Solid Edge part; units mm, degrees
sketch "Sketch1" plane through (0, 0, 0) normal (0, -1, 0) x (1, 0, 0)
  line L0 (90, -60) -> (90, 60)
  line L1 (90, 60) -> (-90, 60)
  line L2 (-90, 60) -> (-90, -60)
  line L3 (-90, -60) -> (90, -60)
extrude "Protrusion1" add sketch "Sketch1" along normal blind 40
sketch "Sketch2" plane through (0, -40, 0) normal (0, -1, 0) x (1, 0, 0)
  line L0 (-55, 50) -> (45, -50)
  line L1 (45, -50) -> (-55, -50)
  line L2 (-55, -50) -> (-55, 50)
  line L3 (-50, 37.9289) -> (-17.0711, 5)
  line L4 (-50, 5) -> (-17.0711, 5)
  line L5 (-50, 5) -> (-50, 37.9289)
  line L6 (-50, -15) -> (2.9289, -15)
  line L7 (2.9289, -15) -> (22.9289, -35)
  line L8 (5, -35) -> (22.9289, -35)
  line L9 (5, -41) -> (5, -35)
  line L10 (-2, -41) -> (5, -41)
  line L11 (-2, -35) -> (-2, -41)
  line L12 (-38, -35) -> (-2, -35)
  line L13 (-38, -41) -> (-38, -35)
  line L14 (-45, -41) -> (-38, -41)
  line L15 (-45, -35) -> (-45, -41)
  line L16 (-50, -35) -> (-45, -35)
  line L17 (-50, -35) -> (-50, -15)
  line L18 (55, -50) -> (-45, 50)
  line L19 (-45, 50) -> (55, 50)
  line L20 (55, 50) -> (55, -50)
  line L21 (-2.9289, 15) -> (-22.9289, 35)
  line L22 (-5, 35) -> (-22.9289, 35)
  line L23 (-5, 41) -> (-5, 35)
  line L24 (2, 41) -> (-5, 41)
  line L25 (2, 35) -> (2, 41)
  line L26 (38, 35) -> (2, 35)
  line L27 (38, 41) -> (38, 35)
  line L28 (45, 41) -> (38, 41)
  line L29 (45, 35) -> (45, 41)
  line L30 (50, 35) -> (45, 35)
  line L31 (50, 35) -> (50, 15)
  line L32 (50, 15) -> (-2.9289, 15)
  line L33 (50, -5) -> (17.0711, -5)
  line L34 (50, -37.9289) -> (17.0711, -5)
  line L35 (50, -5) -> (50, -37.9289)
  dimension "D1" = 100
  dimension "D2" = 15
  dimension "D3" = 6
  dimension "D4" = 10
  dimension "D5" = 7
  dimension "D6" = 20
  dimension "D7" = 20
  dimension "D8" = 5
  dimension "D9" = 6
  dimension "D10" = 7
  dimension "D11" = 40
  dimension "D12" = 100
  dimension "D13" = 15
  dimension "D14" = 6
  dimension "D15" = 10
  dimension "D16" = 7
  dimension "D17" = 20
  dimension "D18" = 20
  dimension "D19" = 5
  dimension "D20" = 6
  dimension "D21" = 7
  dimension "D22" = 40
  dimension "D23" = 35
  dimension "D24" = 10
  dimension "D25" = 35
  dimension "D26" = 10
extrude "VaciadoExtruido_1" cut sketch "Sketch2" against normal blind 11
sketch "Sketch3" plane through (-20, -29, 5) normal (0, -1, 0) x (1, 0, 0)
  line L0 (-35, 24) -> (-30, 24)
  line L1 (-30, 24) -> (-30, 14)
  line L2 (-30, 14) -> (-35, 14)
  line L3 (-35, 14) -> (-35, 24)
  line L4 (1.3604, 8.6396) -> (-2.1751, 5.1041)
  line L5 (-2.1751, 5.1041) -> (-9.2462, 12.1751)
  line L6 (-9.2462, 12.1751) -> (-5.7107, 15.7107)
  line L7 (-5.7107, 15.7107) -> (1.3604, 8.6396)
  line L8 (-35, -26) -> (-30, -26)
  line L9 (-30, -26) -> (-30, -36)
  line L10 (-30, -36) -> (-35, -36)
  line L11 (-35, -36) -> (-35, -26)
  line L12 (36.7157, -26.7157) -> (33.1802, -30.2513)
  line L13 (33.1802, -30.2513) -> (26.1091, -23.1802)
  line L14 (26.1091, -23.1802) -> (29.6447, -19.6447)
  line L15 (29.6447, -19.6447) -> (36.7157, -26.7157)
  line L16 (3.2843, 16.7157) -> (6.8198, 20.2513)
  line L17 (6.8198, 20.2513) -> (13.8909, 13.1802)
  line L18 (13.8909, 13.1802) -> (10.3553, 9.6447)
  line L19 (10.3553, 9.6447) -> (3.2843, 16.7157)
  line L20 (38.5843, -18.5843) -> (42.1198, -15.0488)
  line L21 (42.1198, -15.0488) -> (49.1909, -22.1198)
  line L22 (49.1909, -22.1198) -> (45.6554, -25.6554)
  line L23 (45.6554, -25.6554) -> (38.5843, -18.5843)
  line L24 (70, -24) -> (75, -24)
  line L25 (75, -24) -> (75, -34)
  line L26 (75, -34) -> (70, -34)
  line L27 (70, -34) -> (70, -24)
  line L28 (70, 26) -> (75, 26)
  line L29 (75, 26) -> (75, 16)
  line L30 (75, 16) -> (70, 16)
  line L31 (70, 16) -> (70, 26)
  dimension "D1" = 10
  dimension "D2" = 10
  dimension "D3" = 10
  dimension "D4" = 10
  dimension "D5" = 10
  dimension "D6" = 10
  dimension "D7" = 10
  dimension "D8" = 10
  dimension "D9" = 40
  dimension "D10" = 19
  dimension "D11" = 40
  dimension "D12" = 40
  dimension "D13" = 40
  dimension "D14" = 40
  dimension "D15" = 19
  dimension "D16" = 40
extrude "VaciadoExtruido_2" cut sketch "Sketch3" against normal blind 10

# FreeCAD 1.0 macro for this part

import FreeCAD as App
import Part
import Sketcher
Q = App.Units.Quantity


def add_polygon(sketch, points):
    """Adds a closed chain of lines whose ends are joined by coincident constraints."""
    first, n = sketch.GeometryCount, len(points)
    for a, b in zip(points, points[1:] + points[:1]):
        sketch.addGeometry(Part.LineSegment(App.Vector(*a, 0), App.Vector(*b, 0)), False)
    for i in range(n):
        sketch.addConstraint(Sketcher.Constraint("Coincident", first + i, 2, first + (i + 1) % n, 1))

doc = App.newDocument("Part")
body = doc.addObject("PartDesign::Body", "Body")

# Sketch on XZ plane
sketch1 = doc.addObject("Sketcher::SketchObject", "Sketch")
body.addObject(sketch1)
sketch1.AttachmentSupport = (doc.XZ_Plane, [""])
sketch1.MapMode = "FlatFace"
add_polygon(sketch1, [(-90, -60), (90, -60), (90, 60), (-90, 60)])  # lines 0-3
sketch1.addConstraint([
    Sketcher.Constraint("Horizontal", 0),
    Sketcher.Constraint("Vertical", 1),
    Sketcher.Constraint("Horizontal", 2),
    Sketcher.Constraint("Vertical", 3),
    Sketcher.Constraint("Symmetric", 0, 2, 2, 2, -1, 1),
    Sketcher.Constraint("DistanceX", 0, 1, 0, 2, Q("180 mm")),
    Sketcher.Constraint("DistanceY", 1, 1, 1, 2, Q("120 mm")),
])
pad1 = doc.addObject("PartDesign::Pad", "Pad")
body.addObject(pad1)
pad1.Profile = sketch1
pad1.Length = 40

# Sketch on XZ plane
sketch2 = doc.addObject("Sketcher::SketchObject", "Sketch001")
body.addObject(sketch2)
sketch2.AttachmentSupport = (doc.XZ_Plane, [""])
sketch2.MapMode = "FlatFace"
sketch2.AttachmentOffset = App.Placement(App.Vector(0, 0, 40), App.Rotation())
add_polygon(sketch2, [(45, -50), (-55, 50), (-55, -50)])  # lines 0-2
add_polygon(sketch2, [(-50, -35), (-50, -15), (3, -15), (23, -35), (5, -35), (5, -41), (-2, -41), (-2, -35), (-38, -35), (-38, -41), (-45, -41), (-45, -35)])  # lines 3-14
add_polygon(sketch2, [(-50, 5), (-50, 38), (-17, 5)])  # lines 15-17
add_polygon(sketch2, [(-45, 50), (55, -50), (55, 50)])  # lines 18-20
add_polygon(sketch2, [(17, -5), (50, -5), (50, -38)])  # lines 21-23
add_polygon(sketch2, [(50, 15), (-3, 15), (-23, 35), (-5, 35), (-5, 41), (2, 41), (2, 35), (38, 35), (38, 41), (45, 41), (45, 35), (50, 35)])  # lines 24-35
sketch2.addConstraint([
    Sketcher.Constraint("Vertical", 1),
    Sketcher.Constraint("Horizontal", 2),
    Sketcher.Constraint("Vertical", 3),
    Sketcher.Constraint("Horizontal", 4),
    Sketcher.Constraint("Horizontal", 6),
    Sketcher.Constraint("Vertical", 7),
    Sketcher.Constraint("Horizontal", 8),
    Sketcher.Constraint("Vertical", 9),
    Sketcher.Constraint("Horizontal", 10),
    Sketcher.Constraint("Vertical", 11),
    Sketcher.Constraint("Horizontal", 12),
    Sketcher.Constraint("Vertical", 13),
    Sketcher.Constraint("Horizontal", 14),
    Sketcher.Constraint("Vertical", 15),
    Sketcher.Constraint("Horizontal", 17),
    Sketcher.Constraint("Vertical", 19),
    Sketcher.Constraint("Horizontal", 20),
    Sketcher.Constraint("Horizontal", 21),
    Sketcher.Constraint("Vertical", 22),
    Sketcher.Constraint("Horizontal", 24),
    Sketcher.Constraint("Horizontal", 26),
    Sketcher.Constraint("Vertical", 27),
    Sketcher.Constraint("Horizontal", 28),
    Sketcher.Constraint("Vertical", 29),
    Sketcher.Constraint("Horizontal", 30),
    Sketcher.Constraint("Vertical", 31),
    Sketcher.Constraint("Horizontal", 32),
    Sketcher.Constraint("Vertical", 33),
    Sketcher.Constraint("Horizontal", 34),
    Sketcher.Constraint("Vertical", 35),
    Sketcher.Constraint("Symmetric", 0, 2, 18, 2, -1, 1),
    Sketcher.Constraint("Symmetric", 2, 2, 20, 2, -1, 1),
    Sketcher.Constraint("Symmetric", 17, 2, 21, 2, -1, 1),
    Sketcher.Constraint("Symmetric", 4, 2, 24, 2, -1, 1),
    Sketcher.Constraint("Symmetric", 5, 2, 25, 2, -1, 1),
    Sketcher.Constraint("Symmetric", 7, 2, 27, 2, -1, 1),
    Sketcher.Constraint("Symmetric", 9, 2, 29, 2, -1, 1),
    Sketcher.Constraint("Symmetric", 11, 2, 31, 2, -1, 1),
    Sketcher.Constraint("Symmetric", 13, 2, 33, 2, -1, 1),
    Sketcher.Constraint("Parallel", 0, 5),
    Sketcher.Constraint("Parallel", 5, 16),
    Sketcher.Constraint("Parallel", 18, 23),
    Sketcher.Constraint("Horizontal", 6, 2, 9, 2),
    Sketcher.Constraint("Horizontal", 8, 2, 11, 2),
    Sketcher.Constraint("Horizontal", 10, 2, 13, 2),
    Sketcher.Constraint("Horizontal", 2, 2, 18, 2),
    Sketcher.Constraint("Vertical", 14, 2, 15, 2),
    Sketcher.Constraint("Vertical", 13, 2, 20, 2),
    Sketcher.Constraint("Vertical", 22, 2, 34, 2),
    Sketcher.Constraint("Equal", 8, 12),
    Sketcher.Constraint("Equal", 17, 21),
    Sketcher.Constraint("Equal", 20, 1),
    Sketcher.Constraint("DistanceX", 2, 1, 2, 2, Q("100 mm")),
    Sketcher.Constraint("DistanceX", 8, 2, 8, 1, Q("7 mm")),
    Sketcher.Constraint("DistanceX", 10, 2, 10, 1, Q("36 mm")),
    Sketcher.Constraint("DistanceX", 14, 2, 14, 1, Q("5 mm")),
    Sketcher.Constraint("DistanceY", 3, 1, 3, 2, Q("20 mm")),
    Sketcher.Constraint("DistanceY", 7, 2, 7, 1, Q("6 mm")),
    Sketcher.Constraint("DistanceX", 0, 2, -1, 1, Q("55 mm")),
    Sketcher.Constraint("DistanceY", 3, 2, -1, 1, Q("15 mm")),
    Sketcher.Constraint("DistanceY", -1, 1, 16, 2, Q("5 mm")),
    Sketcher.Constraint("DistanceX", 16, 2, 4, 2, Q("20 mm")),
    Sketcher.Constraint("DistanceX", 4, 1, 4, 2, Q("52.929 mm")),
])
pocket1 = doc.addObject("PartDesign::Pocket", "Pocket")
body.addObject(pocket1)
pocket1.Profile = sketch2
pocket1.Length = 11

# Sketch on XZ plane
sketch3 = doc.addObject("Sketcher::SketchObject", "Sketch002")
body.addObject(sketch3)
sketch3.AttachmentSupport = (doc.XZ_Plane, [""])
sketch3.MapMode = "FlatFace"
sketch3.AttachmentOffset = App.Placement(App.Vector(0, 0, 29), App.Rotation())
add_polygon(sketch3, [(-50, 29), (-55, 29), (-55, 19), (-50, 19)])  # lines 0-3
add_polygon(sketch3, [(-22.2, 10.1), (-18.6, 13.6), (-25.7, 20.7), (-29.2, 17.2)])  # lines 4-7
add_polygon(sketch3, [(-50, -21), (-55, -21), (-55, -31), (-50, -31)])  # lines 8-11
add_polygon(sketch3, [(13.2, -25.3), (16.7, -21.7), (9.6, -14.6), (6.1, -18.2)])  # lines 12-15
add_polygon(sketch3, [(-13.2, 25.3), (-16.7, 21.7), (-9.6, 14.6), (-6.1, 18.2)])  # lines 16-19
add_polygon(sketch3, [(22.1, -10), (18.6, -13.6), (25.7, -20.7), (29.2, -17.1)])  # lines 20-23
add_polygon(sketch3, [(55, -19), (50, -19), (50, -29), (55, -29)])  # lines 24-27
add_polygon(sketch3, [(55, 31), (50, 31), (50, 21), (55, 21)])  # lines 28-31
sketch3.addConstraint([
    Sketcher.Constraint("Horizontal", 0),
    Sketcher.Constraint("Vertical", 1),
    Sketcher.Constraint("Horizontal", 2),
    Sketcher.Constraint("Vertical", 3),
    Sketcher.Constraint("Horizontal", 8),
    Sketcher.Constraint("Vertical", 9),
    Sketcher.Constraint("Horizontal", 10),
    Sketcher.Constraint("Vertical", 11),
    Sketcher.Constraint("Horizontal", 24),
    Sketcher.Constraint("Vertical", 25),
    Sketcher.Constraint("Horizontal", 26),
    Sketcher.Constraint("Vertical", 27),
    Sketcher.Constraint("Horizontal", 28),
    Sketcher.Constraint("Vertical", 29),
    Sketcher.Constraint("Horizontal", 30),
    Sketcher.Constraint("Vertical", 31),
    Sketcher.Constraint("Symmetric", 12, 2, 16, 2, -1, 1),
    Sketcher.Constraint("Symmetric", 13, 2, 17, 2, -1, 1),
    Sketcher.Constraint("Symmetric", 14, 2, 18, 2, -1, 1),
    Sketcher.Constraint("Symmetric", 15, 2, 19, 2, -1, 1),
    Sketcher.Constraint("Symmetric", 2, 2, 24, 2, -1, 1),
    Sketcher.Constraint("Symmetric", 0, 2, 26, 2, -1, 1),
    Sketcher.Constraint("Symmetric", 10, 2, 28, 2, -1, 1),
    Sketcher.Constraint("Symmetric", 8, 2, 30, 2, -1, 1),
    Sketcher.Constraint("Perpendicular", 4, 5),
    Sketcher.Constraint("Perpendicular", 5, 6),
    Sketcher.Constraint("Perpendicular", 6, 7),
    Sketcher.Constraint("Perpendicular", 7, 12),
    Sketcher.Constraint("Perpendicular", 12, 13),
    Sketcher.Constraint("Perpendicular", 13, 14),
    Sketcher.Constraint("Perpendicular", 14, 15),
    Sketcher.Constraint("Perpendicular", 19, 20),
    Sketcher.Constraint("Perpendicular", 20, 21),
    Sketcher.Constraint("Perpendicular", 21, 22),
    Sketcher.Constraint("Perpendicular", 22, 23),
    Sketcher.Constraint("Vertical", 1, 2, 8, 2),
    Sketcher.Constraint("Vertical", 3, 2, 10, 2),
    Sketcher.Constraint("Equal", 3, 9),
    Sketcher.Constraint("Equal", 6, 12),
    Sketcher.Constraint("Equal", 7, 13),
    Sketcher.Constraint("Equal", 18, 20),
    Sketcher.Constraint("Equal", 19, 21),
    Sketcher.Constraint("DistanceX", 0, 2, 0, 1, Q("5 mm")),
    Sketcher.Constraint("DistanceY", 1, 2, 1, 1, Q("10 mm")),
    Sketcher.Constraint("Angle", 4, Q("45 deg")),
    Sketcher.Constraint("Distance", 4, Q("5 mm")),
    Sketcher.Constraint("Distance", 5, Q("10 mm")),
    Sketcher.Constraint("DistanceX", 0, 2, -1, 1, Q("55 mm")),
    Sketcher.Constraint("DistanceY", -1, 1, 0, 2, Q("29 mm")),
    Sketcher.Constraint("DistanceY", 8, 2, -1, 1, Q("21 mm")),
    Sketcher.Constraint("DistanceY", -1, 1, 6, 2, Q("17.175 mm")),
    Sketcher.Constraint("DistanceX", 7, 2, -1, 1, Q("22.175 mm")),
    Sketcher.Constraint("DistanceX", -1, 1, 14, 2, Q("6.109 mm")),
    Sketcher.Constraint("DistanceX", -1, 1, 22, 2, Q("29.191 mm")),
    Sketcher.Constraint("DistanceY", 15, 2, 4, 2, Q("38.891 mm")),
    Sketcher.Constraint("DistanceY", 15, 2, 20, 2, Q("11.667 mm")),
])
pocket2 = doc.addObject("PartDesign::Pocket", "Pocket001")
body.addObject(pocket2)
pocket2.Profile = sketch3
pocket2.Length = 10

doc.recompute()
